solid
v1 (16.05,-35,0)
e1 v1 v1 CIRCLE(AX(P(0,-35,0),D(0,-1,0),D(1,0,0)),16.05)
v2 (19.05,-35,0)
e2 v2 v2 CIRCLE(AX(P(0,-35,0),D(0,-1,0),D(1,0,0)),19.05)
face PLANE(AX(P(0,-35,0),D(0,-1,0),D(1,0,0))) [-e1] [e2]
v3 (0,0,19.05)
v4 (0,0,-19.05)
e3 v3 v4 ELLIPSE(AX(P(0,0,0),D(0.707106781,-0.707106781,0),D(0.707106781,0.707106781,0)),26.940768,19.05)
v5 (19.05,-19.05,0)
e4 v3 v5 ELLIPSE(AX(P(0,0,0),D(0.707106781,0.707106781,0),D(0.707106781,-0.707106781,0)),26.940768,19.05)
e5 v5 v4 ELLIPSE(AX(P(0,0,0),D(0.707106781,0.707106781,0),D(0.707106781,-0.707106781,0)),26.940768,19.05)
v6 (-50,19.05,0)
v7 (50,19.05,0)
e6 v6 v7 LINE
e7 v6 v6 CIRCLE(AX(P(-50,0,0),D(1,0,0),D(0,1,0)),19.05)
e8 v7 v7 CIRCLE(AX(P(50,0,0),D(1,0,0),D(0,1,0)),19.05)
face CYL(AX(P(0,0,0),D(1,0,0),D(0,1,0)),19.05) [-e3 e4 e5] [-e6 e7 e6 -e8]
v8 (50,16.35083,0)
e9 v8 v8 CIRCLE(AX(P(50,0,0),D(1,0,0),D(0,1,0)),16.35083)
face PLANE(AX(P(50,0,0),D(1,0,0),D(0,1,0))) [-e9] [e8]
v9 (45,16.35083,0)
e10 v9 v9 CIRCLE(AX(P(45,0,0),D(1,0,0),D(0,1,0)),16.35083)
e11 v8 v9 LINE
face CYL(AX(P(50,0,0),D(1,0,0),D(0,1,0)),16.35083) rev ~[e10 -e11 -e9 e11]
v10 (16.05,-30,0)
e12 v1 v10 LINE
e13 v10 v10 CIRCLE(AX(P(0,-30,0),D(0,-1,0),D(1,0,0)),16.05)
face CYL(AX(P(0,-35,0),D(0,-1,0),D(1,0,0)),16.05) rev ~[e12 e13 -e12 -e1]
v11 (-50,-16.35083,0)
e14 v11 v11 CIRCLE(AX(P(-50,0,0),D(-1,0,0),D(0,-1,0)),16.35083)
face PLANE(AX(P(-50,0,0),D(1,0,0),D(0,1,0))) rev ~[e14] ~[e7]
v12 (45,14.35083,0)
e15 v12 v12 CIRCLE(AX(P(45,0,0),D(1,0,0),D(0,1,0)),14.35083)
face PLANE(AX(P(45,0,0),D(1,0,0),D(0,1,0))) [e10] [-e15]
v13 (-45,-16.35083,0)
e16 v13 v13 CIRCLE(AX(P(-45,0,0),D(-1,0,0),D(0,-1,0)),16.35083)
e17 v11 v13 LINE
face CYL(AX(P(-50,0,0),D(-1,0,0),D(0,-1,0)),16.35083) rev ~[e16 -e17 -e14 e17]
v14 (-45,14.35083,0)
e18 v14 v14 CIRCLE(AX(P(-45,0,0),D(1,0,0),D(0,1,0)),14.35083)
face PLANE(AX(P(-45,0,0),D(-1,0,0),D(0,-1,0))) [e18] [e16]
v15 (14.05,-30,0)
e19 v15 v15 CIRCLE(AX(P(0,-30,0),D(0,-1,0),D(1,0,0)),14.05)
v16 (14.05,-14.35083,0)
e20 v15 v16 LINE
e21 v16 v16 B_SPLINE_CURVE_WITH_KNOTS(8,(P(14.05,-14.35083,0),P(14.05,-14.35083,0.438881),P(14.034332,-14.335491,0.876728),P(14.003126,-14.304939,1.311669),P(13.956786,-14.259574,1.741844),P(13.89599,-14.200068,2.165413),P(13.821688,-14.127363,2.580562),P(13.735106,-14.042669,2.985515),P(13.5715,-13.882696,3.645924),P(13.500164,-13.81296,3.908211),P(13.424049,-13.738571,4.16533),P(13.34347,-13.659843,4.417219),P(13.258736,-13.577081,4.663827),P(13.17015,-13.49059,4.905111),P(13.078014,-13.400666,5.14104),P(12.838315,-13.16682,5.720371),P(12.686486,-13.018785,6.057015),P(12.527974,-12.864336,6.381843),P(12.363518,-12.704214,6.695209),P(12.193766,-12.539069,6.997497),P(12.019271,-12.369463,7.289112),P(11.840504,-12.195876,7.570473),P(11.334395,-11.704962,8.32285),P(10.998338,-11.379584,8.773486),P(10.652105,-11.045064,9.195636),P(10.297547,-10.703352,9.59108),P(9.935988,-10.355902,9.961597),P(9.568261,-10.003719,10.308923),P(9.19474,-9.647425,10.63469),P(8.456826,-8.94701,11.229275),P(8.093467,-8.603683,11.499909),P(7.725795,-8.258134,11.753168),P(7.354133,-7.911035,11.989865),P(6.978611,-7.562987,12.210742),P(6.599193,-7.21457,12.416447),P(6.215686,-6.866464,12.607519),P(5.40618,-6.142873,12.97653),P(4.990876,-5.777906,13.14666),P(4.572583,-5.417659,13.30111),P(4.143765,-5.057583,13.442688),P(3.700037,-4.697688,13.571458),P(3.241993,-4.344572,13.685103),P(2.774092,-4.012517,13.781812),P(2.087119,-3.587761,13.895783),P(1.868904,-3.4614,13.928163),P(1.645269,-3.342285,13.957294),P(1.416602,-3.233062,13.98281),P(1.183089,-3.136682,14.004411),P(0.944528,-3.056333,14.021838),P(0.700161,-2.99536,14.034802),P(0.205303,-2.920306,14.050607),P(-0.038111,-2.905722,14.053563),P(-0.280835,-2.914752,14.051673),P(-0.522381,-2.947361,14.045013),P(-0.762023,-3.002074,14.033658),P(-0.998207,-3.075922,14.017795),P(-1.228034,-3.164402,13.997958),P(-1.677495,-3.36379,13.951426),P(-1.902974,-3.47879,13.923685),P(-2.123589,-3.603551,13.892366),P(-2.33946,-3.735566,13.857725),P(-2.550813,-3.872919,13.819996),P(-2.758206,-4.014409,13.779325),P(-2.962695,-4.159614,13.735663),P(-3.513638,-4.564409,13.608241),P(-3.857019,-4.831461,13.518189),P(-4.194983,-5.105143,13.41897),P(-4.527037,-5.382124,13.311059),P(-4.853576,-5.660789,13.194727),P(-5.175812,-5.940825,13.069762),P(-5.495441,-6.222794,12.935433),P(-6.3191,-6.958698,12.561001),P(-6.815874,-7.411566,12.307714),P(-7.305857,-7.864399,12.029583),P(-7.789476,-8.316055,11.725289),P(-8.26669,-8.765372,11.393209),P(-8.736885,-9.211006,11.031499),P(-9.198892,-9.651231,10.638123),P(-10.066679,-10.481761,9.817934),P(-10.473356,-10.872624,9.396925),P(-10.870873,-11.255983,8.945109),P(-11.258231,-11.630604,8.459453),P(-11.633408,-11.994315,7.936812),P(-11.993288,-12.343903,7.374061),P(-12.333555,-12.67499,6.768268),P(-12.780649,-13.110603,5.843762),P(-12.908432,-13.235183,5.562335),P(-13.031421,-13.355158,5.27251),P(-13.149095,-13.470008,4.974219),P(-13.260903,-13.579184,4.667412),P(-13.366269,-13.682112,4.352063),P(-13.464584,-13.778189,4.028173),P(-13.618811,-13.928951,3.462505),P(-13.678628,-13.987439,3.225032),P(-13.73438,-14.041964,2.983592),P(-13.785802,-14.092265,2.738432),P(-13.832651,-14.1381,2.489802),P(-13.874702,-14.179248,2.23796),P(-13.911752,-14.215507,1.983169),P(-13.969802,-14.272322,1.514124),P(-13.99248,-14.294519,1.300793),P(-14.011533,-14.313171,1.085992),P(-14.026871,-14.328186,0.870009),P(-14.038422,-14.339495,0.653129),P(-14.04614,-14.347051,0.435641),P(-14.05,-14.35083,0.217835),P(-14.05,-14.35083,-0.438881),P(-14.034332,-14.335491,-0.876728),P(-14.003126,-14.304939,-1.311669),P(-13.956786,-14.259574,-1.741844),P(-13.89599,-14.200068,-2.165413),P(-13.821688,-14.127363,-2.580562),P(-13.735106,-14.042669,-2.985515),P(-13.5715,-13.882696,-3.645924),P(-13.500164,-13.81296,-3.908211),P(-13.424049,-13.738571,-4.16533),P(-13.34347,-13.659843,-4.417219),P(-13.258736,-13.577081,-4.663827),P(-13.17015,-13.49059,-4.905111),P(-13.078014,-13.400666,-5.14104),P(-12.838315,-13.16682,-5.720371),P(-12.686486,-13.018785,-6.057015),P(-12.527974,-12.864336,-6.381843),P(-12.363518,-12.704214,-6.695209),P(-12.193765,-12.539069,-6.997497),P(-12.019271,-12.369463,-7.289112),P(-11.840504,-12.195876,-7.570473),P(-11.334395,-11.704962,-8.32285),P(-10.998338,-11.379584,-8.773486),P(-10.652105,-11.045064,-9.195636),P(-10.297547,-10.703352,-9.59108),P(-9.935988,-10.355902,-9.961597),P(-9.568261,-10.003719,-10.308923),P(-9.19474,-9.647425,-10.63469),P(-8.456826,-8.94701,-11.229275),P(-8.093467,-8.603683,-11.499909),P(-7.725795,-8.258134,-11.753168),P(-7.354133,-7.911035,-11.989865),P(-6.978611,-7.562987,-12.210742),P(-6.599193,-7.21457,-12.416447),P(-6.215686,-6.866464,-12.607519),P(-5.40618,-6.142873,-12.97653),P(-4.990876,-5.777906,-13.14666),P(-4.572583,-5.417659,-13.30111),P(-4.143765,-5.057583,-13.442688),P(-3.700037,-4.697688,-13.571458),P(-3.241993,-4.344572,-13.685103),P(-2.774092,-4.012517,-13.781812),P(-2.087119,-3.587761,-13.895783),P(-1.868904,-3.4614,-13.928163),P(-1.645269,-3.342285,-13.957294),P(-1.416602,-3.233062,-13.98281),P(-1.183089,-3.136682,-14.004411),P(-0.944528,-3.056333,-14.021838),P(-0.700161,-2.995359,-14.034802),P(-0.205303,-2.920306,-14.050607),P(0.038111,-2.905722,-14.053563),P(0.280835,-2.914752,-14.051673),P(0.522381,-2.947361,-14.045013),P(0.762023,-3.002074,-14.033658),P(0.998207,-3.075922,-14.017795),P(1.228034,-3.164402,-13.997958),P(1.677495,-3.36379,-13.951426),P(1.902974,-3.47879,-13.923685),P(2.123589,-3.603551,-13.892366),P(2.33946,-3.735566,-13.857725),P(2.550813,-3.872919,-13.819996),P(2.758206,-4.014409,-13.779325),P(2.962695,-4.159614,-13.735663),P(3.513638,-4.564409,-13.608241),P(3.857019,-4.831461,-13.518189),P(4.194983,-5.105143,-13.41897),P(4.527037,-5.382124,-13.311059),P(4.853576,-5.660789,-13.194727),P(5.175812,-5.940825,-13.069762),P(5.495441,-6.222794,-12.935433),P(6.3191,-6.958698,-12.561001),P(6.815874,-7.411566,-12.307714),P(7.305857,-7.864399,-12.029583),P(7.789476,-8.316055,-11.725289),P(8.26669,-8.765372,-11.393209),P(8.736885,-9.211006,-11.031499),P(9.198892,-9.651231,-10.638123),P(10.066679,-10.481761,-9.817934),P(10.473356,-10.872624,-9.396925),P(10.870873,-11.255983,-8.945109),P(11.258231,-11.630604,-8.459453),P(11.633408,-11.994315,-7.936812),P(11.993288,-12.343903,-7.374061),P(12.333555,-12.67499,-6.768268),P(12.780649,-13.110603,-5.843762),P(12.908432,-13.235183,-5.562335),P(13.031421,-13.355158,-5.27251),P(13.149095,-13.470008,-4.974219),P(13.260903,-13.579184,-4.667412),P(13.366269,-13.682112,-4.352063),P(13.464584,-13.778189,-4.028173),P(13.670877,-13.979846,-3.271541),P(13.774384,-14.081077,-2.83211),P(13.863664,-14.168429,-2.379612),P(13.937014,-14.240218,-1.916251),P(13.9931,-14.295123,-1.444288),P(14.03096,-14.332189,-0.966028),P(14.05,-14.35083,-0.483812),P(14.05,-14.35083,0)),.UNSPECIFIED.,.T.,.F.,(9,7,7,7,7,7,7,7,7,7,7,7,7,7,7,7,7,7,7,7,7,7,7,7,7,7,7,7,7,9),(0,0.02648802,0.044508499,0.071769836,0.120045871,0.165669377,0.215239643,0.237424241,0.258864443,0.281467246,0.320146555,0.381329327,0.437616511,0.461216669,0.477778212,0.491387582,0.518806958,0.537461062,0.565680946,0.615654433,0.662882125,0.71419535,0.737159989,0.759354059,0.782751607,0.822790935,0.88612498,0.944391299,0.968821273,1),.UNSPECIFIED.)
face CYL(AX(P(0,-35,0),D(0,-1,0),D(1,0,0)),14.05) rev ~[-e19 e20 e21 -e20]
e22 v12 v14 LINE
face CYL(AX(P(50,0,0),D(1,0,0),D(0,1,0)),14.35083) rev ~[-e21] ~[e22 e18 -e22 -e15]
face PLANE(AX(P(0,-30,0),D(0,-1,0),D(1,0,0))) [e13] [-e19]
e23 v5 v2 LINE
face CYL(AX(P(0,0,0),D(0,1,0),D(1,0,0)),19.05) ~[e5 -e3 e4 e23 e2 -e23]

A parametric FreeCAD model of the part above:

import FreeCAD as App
import Part
import Sketcher

V = App.Vector
Q = App.Units.Quantity

doc = App.newDocument("Part")
body = doc.addObject("PartDesign::Body", "Body")

sketch1 = doc.addObject("Sketcher::SketchObject", "Sketch")
body.addObject(sketch1)
sketch1.AttachmentSupport = (doc.YZ_Plane, [""])
sketch1.MapMode = "FlatFace"
sketch1.addGeometry(Part.Circle(V(0, 0, 0), V(0, 0, 1), 19), False)
sketch1.addConstraint(Sketcher.Constraint("Coincident", 0, 3, -1, 1))
sketch1.addConstraint(Sketcher.Constraint("Diameter", 0, Q("38.1 mm")))
pad1 = doc.addObject("PartDesign::Pad", "Pad")
body.addObject(pad1)
pad1.Profile = sketch1
pad1.Length = 100
pad1.Midplane = True

sketch2 = doc.addObject("Sketcher::SketchObject", "Sketch001")
body.addObject(sketch2)
sketch2.AttachmentSupport = (doc.XZ_Plane, [""])
sketch2.MapMode = "FlatFace"
sketch2.addGeometry(Part.Circle(V(0, 0, 0), V(0, 0, 1), 19), False)
sketch2.addConstraint(Sketcher.Constraint("Coincident", 0, 3, -1, 1))
sketch2.addConstraint(Sketcher.Constraint("Diameter", 0, Q("38.1 mm")))
pad2 = doc.addObject("PartDesign::Pad", "Pad001")
body.addObject(pad2)
pad2.Profile = sketch2
pad2.Length = 35

sketch3 = doc.addObject("Sketcher::SketchObject", "Sketch002")
body.addObject(sketch3)
sketch3.AttachmentSupport = (doc.YZ_Plane, [""])
sketch3.MapMode = "FlatFace"
sketch3.AttachmentOffset = App.Placement(V(0, 0, 50), App.Rotation())
sketch3.addGeometry(Part.Circle(V(0, 0, 0), V(0, 0, 1), 14), False)
sketch3.addConstraint(Sketcher.Constraint("Coincident", 0, 3, -1, 1))
sketch3.addConstraint(Sketcher.Constraint("Diameter", 0, Q("28.70166 mm")))
pocket1 = doc.addObject("PartDesign::Pocket", "Pocket")
body.addObject(pocket1)
pocket1.Profile = sketch3
pocket1.Type = "ThroughAll"

sketch4 = doc.addObject("Sketcher::SketchObject", "Sketch003")
body.addObject(sketch4)
sketch4.AttachmentSupport = (doc.XZ_Plane, [""])
sketch4.MapMode = "FlatFace"
sketch4.AttachmentOffset = App.Placement(V(0, 0, 35), App.Rotation())
sketch4.addGeometry(Part.Circle(V(0, 0, 0), V(0, 0, 1), 14), False)
sketch4.addConstraint(Sketcher.Constraint("Coincident", 0, 3, -1, 1))
sketch4.addConstraint(Sketcher.Constraint("Diameter", 0, Q("28.1 mm")))
pocket2 = doc.addObject("PartDesign::Pocket", "Pocket001")
body.addObject(pocket2)
pocket2.Profile = sketch4
pocket2.Length = 32.078018

sketch5 = doc.addObject("Sketcher::SketchObject", "Sketch004")
body.addObject(sketch5)
sketch5.AttachmentSupport = (doc.XZ_Plane, [""])
sketch5.MapMode = "FlatFace"
sketch5.AttachmentOffset = App.Placement(V(0, 0, 35), App.Rotation())
sketch5.addGeometry(Part.Circle(V(0, 0, 0), V(0, 0, 1), 16), False)
sketch5.addConstraint(Sketcher.Constraint("Coincident", 0, 3, -1, 1))
sketch5.addConstraint(Sketcher.Constraint("Diameter", 0, Q("32.1 mm")))
pocket3 = doc.addObject("PartDesign::Pocket", "Pocket002")
body.addObject(pocket3)
pocket3.Profile = sketch5
pocket3.Length = 5

sketch6 = doc.addObject("Sketcher::SketchObject", "Sketch005")
body.addObject(sketch6)
sketch6.AttachmentSupport = (doc.YZ_Plane, [""])
sketch6.MapMode = "FlatFace"
sketch6.AttachmentOffset = App.Placement(V(0, 0, 50), App.Rotation())
sketch6.addGeometry(Part.Circle(V(0, 0, 0), V(0, 0, 1), 16), False)
sketch6.addConstraint(Sketcher.Constraint("Coincident", 0, 3, -1, 1))
sketch6.addConstraint(Sketcher.Constraint("Diameter", 0, Q("32.70166 mm")))
pocket4 = doc.addObject("PartDesign::Pocket", "Pocket003")
body.addObject(pocket4)
pocket4.Profile = sketch6
pocket4.Length = 5

sketch7 = doc.addObject("Sketcher::SketchObject", "Sketch006")
body.addObject(sketch7)
sketch7.AttachmentSupport = (doc.YZ_Plane, [""])
sketch7.MapMode = "FlatFace"
sketch7.AttachmentOffset = App.Placement(V(0, 0, -50), App.Rotation())
sketch7.addGeometry(Part.Circle(V(0, 0, 0), V(0, 0, 1), 16), False)
sketch7.addConstraint(Sketcher.Constraint("Coincident", 0, 3, -1, 1))
sketch7.addConstraint(Sketcher.Constraint("Diameter", 0, Q("32.70166 mm")))
pocket5 = doc.addObject("PartDesign::Pocket", "Pocket004")
body.addObject(pocket5)
pocket5.Profile = sketch7
pocket5.Length = 5
pocket5.Reversed = True

doc.recompute()
